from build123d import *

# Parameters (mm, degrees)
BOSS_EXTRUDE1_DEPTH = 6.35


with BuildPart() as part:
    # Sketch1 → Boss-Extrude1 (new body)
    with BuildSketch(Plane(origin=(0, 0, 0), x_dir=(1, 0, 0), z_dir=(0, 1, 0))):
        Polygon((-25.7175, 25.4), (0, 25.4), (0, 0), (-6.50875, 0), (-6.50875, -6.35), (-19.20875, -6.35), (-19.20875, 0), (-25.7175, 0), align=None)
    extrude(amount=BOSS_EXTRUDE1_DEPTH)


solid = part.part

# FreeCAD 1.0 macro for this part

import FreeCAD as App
import Part
import Sketcher

V = App.Vector
Q = App.Units.Quantity

doc = App.newDocument("Part")
params = doc.addObject("Spreadsheet::Sheet", "Params")
for row, (alias, value) in enumerate([
    ("sketch1_height", "1 in"),
    ("sketch1_width", "0.5 in"),
    ("sketch1_height2", "0.25 in"),
    ("pad1_length", "0.25 in"),
], start=1):
    params.set(f"A{row}", alias)
    params.set(f"B{row}", "=" + value)
    params.setAlias(f"B{row}", alias)

body = doc.addObject("PartDesign::Body", "Body")

sketch1 = body.newObject("Sketcher::SketchObject", "Sketch")
sketch1.AttachmentSupport = (doc.getObject("XZ_Plane"), [""])
sketch1.MapMode = "FlatFace"
sketch1.addGeometry(Part.LineSegment(V(0, -25, 0), V(-26, -25, 0)), False)
sketch1.addGeometry(Part.LineSegment(V(-26, -25, 0), V(-26, 0, 0)), False)
sketch1.addGeometry(Part.LineSegment(V(-26, 0, 0), V(-19, 0, 0)), False)
sketch1.addGeometry(Part.LineSegment(V(-19, 0, 0), V(-19, 6, 0)), False)
sketch1.addGeometry(Part.LineSegment(V(-19, 6, 0), V(-7, 6, 0)), False)
sketch1.addGeometry(Part.LineSegment(V(-7, 6, 0), V(-7, 0, 0)), False)
sketch1.addGeometry(Part.LineSegment(V(-7, 0, 0), V(0, 0, 0)), False)
sketch1.addGeometry(Part.LineSegment(V(0, 0, 0), V(0, -25, 0)), False)
sketch1.addConstraint(Sketcher.Constraint("Coincident", 0, 2, 1, 1))
sketch1.addConstraint(Sketcher.Constraint("Coincident", 1, 2, 2, 1))
sketch1.addConstraint(Sketcher.Constraint("Coincident", 2, 2, 3, 1))
sketch1.addConstraint(Sketcher.Constraint("Coincident", 3, 2, 4, 1))
sketch1.addConstraint(Sketcher.Constraint("Coincident", 4, 2, 5, 1))
sketch1.addConstraint(Sketcher.Constraint("Coincident", 5, 2, 6, 1))
sketch1.addConstraint(Sketcher.Constraint("Coincident", 6, 2, 7, 1))
sketch1.addConstraint(Sketcher.Constraint("Coincident", 7, 2, 0, 1))
sketch1.addConstraint(Sketcher.Constraint("Horizontal", 0))
sketch1.addConstraint(Sketcher.Constraint("Vertical", 1))
sketch1.addConstraint(Sketcher.Constraint("Horizontal", 2))
sketch1.addConstraint(Sketcher.Constraint("Vertical", 3))
sketch1.addConstraint(Sketcher.Constraint("Horizontal", 4))
sketch1.addConstraint(Sketcher.Constraint("Vertical", 5))
sketch1.addConstraint(Sketcher.Constraint("Horizontal", 6))
sketch1.addConstraint(Sketcher.Constraint("Vertical", 7))
sketch1.addConstraint(Sketcher.Constraint("Coincident", 6, 2, -1, 1))
sketch1.addConstraint(Sketcher.Constraint("PointOnObject", 1, 2, -1))
sketch1.addConstraint(Sketcher.Constraint("Equal", 2, 6))
sketch1.addConstraint(Sketcher.Constraint("DistanceY", 1, 1, 1, 2, Q("1 in")))
sketch1.addConstraint(Sketcher.Constraint("DistanceX", 4, 1, 4, 2, Q("0.5 in")))
sketch1.addConstraint(Sketcher.Constraint("DistanceY", 3, 1, 3, 2, Q("0.25 in")))
sketch1.addConstraint(Sketcher.Constraint("DistanceX", 0, 2, 0, 1, Q("1.0125 in")))
sketch1.setExpression("Constraints[19]", "Params.sketch1_height")
sketch1.setExpression("Constraints[20]", "Params.sketch1_width")
sketch1.setExpression("Constraints[21]", "Params.sketch1_height2")
pad1 = body.newObject("PartDesign::Pad", "Pad")
pad1.Profile = sketch1
pad1.setExpression("Length", "Params.pad1_length")
pad1.Reversed = True

doc.recompute()
